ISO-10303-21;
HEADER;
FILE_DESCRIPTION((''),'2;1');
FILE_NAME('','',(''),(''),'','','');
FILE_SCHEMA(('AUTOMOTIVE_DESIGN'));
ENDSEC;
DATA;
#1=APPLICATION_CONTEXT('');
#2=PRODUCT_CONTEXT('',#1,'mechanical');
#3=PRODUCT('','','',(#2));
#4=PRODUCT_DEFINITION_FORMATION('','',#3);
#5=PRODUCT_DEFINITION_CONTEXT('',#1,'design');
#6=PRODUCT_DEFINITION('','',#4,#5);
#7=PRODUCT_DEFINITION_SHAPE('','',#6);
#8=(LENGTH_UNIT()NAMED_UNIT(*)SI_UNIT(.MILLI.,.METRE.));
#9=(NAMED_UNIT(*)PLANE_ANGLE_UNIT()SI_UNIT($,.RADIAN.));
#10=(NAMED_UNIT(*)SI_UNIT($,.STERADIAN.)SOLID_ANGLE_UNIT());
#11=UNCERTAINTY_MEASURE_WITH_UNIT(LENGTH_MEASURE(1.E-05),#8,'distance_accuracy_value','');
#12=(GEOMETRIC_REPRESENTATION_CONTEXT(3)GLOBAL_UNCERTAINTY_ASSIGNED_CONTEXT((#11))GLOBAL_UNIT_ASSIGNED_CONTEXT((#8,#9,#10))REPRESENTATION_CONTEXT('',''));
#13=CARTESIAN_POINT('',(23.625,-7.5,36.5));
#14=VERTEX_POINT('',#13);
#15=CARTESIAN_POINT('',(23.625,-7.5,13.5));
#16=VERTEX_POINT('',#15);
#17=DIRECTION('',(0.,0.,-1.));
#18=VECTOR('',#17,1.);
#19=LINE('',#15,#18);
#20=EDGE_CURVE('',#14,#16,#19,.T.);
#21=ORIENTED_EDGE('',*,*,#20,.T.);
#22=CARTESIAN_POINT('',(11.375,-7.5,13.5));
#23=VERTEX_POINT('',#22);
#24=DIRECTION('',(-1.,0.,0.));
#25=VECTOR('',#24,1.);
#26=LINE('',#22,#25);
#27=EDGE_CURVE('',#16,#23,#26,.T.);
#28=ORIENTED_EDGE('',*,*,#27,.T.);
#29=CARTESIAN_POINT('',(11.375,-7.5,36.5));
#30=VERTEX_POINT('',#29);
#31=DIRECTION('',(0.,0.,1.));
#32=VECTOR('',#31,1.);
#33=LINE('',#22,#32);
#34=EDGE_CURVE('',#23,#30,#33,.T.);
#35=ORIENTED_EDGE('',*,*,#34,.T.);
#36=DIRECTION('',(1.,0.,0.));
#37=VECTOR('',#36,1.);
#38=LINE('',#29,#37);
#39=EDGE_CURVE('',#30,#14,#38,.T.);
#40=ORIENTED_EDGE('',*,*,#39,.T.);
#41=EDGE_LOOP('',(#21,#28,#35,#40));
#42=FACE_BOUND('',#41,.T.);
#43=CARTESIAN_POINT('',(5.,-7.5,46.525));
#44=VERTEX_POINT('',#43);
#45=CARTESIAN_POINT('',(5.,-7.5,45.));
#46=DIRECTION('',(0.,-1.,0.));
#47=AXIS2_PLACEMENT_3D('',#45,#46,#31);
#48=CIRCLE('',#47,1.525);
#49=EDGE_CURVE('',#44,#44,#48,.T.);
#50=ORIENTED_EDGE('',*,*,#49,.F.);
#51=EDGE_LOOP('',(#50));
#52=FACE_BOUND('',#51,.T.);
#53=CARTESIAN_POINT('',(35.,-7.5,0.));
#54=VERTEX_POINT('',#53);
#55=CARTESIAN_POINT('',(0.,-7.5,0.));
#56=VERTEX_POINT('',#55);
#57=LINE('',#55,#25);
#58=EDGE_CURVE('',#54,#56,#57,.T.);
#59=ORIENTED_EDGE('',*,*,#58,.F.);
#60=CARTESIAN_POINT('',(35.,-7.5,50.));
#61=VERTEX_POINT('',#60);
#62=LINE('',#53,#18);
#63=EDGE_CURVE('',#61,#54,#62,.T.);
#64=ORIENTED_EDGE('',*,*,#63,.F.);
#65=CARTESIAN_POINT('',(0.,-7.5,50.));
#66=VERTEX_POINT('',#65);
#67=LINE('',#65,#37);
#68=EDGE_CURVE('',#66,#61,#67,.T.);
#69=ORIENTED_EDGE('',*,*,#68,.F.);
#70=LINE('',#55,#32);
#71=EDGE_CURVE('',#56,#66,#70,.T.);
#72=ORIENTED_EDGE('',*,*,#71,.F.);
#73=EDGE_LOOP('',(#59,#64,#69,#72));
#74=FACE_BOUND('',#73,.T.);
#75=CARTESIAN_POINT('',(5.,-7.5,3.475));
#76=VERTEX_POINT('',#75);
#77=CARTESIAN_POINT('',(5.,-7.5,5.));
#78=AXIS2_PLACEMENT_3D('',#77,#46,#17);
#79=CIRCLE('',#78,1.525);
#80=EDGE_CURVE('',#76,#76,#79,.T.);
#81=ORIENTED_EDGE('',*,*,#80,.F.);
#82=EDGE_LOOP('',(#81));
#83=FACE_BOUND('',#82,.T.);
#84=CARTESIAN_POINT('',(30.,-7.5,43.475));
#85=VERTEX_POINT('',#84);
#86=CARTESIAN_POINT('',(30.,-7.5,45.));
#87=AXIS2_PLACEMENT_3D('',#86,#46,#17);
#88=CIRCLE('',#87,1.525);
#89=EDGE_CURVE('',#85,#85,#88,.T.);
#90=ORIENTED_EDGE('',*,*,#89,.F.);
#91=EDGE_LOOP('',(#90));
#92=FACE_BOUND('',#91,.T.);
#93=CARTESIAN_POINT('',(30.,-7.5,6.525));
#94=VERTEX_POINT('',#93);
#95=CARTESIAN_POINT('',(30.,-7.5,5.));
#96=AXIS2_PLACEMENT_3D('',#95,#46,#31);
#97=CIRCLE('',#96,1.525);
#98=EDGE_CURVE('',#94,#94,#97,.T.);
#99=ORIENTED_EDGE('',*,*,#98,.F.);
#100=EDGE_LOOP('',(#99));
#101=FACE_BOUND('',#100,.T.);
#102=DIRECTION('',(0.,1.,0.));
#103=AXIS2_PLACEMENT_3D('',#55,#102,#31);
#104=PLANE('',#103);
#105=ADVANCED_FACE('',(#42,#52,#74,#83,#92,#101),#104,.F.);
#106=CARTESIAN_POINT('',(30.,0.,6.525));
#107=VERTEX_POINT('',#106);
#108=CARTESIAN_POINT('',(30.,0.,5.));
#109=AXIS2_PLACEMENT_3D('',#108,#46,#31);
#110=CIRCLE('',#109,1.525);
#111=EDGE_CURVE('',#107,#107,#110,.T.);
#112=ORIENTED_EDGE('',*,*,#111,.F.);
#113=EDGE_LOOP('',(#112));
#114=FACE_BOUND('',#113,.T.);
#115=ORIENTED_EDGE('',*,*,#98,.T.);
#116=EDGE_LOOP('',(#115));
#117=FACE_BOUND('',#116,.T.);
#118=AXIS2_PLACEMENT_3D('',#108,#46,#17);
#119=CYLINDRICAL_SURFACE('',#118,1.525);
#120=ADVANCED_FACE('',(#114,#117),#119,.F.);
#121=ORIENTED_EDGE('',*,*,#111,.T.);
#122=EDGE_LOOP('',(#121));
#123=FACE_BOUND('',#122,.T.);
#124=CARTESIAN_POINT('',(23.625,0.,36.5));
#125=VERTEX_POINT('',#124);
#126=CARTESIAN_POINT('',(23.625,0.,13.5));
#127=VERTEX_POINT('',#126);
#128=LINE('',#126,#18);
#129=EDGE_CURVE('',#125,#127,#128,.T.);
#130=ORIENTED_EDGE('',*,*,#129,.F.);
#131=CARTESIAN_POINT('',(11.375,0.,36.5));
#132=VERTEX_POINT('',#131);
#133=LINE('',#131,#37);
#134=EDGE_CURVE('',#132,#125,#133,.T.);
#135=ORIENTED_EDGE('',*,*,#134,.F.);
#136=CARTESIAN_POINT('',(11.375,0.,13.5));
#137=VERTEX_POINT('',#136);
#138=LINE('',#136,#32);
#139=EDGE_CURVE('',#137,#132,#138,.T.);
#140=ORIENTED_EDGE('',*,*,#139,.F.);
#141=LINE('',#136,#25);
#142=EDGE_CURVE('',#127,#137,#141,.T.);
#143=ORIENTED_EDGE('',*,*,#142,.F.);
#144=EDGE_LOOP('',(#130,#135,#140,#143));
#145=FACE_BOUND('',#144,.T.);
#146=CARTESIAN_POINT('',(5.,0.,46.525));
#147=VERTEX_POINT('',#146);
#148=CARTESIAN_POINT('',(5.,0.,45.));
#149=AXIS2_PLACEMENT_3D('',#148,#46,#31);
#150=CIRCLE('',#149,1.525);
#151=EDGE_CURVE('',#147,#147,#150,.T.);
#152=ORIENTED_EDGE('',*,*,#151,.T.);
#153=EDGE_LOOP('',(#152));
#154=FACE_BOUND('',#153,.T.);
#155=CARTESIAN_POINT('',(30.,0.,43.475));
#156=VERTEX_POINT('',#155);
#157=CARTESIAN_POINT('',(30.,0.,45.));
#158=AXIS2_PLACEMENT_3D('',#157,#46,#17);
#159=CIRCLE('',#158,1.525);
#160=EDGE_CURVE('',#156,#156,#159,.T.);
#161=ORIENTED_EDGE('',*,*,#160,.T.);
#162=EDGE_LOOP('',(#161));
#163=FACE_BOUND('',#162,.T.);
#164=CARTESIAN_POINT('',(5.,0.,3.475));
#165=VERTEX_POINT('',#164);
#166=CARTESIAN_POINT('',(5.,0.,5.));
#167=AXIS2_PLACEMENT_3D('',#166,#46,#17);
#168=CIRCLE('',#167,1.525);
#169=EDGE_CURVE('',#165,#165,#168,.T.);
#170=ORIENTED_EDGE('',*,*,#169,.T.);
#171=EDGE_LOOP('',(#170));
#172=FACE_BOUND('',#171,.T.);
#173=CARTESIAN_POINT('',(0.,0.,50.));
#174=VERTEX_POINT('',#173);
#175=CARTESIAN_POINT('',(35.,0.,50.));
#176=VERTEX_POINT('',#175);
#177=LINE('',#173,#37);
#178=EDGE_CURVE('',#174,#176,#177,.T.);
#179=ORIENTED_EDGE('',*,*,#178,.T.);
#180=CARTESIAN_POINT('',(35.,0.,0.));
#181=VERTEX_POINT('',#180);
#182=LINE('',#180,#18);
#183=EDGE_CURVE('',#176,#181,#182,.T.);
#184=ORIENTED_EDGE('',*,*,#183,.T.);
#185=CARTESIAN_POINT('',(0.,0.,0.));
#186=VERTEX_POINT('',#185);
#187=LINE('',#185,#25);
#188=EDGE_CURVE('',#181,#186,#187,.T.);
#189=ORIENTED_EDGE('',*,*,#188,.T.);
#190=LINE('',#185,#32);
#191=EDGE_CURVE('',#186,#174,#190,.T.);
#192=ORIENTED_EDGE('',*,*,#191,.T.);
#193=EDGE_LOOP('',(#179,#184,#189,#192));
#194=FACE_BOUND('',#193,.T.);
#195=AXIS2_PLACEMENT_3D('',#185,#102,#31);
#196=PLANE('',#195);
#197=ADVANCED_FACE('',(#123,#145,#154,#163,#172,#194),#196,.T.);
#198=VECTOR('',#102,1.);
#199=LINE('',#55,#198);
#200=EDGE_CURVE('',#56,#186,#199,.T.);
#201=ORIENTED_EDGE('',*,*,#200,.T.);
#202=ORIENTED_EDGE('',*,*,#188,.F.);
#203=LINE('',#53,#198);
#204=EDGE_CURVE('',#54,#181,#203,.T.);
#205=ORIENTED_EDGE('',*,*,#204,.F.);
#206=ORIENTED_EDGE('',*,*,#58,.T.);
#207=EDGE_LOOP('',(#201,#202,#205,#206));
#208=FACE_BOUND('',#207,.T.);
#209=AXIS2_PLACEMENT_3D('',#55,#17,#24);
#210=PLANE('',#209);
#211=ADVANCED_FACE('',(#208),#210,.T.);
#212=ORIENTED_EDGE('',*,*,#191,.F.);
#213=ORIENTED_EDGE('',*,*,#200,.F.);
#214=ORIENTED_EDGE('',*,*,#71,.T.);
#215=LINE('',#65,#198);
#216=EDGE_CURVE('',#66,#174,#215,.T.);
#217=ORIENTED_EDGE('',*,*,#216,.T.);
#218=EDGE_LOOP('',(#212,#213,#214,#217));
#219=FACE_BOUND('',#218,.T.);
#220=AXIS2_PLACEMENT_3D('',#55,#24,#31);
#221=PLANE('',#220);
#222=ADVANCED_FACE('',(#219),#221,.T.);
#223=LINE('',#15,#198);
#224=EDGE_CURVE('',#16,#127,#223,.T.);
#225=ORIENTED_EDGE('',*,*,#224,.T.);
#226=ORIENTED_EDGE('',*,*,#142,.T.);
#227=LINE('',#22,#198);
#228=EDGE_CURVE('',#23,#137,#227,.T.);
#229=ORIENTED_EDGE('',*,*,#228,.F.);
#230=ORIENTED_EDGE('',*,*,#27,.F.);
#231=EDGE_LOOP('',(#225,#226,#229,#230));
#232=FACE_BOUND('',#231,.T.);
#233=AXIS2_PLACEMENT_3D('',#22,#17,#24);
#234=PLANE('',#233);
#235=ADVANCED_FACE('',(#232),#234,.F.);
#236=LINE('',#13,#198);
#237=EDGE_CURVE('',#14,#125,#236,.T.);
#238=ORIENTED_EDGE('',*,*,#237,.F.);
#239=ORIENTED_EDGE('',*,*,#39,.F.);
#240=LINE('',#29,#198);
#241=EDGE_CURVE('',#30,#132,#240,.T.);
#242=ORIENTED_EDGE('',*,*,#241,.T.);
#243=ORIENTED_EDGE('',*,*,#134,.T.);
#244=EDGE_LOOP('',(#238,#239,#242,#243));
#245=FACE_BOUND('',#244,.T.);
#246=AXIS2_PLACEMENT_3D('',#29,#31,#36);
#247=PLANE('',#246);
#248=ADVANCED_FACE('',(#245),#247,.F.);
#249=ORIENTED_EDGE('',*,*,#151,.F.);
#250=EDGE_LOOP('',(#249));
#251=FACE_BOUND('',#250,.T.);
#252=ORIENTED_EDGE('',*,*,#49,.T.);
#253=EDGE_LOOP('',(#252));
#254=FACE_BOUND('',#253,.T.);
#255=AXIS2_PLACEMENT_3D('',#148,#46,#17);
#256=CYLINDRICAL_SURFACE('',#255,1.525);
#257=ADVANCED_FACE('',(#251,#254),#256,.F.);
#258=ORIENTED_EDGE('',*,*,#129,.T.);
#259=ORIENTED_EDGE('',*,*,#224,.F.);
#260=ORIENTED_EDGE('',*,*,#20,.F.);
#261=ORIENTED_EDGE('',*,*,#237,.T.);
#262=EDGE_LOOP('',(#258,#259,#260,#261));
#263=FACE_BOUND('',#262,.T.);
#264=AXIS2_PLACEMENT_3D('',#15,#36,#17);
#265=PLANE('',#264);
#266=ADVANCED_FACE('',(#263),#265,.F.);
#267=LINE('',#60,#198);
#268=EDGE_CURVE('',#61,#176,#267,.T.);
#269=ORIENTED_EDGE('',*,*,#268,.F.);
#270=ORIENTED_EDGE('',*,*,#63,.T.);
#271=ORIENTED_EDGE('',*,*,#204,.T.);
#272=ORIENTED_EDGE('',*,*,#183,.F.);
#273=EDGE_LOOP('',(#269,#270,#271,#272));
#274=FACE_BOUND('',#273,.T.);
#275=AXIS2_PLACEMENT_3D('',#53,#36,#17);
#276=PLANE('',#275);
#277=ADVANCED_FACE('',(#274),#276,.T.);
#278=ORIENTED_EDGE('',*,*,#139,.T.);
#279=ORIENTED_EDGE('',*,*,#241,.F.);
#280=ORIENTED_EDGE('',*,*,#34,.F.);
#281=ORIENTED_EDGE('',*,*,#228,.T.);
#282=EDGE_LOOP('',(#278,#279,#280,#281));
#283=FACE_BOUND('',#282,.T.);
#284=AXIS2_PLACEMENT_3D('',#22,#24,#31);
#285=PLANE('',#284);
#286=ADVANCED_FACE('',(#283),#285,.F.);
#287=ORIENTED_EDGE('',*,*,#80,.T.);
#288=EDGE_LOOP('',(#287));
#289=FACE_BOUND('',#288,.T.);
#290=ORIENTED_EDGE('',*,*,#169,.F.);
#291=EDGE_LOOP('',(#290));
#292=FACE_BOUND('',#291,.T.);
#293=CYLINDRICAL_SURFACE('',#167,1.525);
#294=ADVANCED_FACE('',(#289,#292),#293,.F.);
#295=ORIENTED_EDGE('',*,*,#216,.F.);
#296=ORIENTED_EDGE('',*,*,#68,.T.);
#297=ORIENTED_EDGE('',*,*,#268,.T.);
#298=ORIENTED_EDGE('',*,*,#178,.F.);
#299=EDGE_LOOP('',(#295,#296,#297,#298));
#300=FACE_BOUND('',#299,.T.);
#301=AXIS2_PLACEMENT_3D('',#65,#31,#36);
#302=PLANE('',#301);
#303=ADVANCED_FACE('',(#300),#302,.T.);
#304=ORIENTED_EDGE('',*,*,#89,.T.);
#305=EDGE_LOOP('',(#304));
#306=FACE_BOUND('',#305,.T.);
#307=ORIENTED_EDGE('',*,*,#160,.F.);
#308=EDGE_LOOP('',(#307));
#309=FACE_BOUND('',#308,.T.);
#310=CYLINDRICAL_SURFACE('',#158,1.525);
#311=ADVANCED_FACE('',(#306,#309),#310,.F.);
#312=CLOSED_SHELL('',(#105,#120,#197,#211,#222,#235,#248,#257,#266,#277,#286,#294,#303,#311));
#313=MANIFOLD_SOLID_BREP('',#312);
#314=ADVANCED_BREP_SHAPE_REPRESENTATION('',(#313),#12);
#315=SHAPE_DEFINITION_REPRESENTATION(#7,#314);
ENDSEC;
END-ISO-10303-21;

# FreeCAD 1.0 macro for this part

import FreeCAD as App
import Part
import Sketcher
from FreeCAD import Vector
Q = App.Units.Quantity


def add_polygon(sketch, points):
    """Adds a closed chain of lines whose ends are joined by coincident constraints."""
    first, n = sketch.GeometryCount, len(points)
    for a, b in zip(points, points[1:] + points[:1]):
        sketch.addGeometry(Part.LineSegment(App.Vector(*a, 0), App.Vector(*b, 0)), False)
    for i in range(n):
        sketch.addConstraint(Sketcher.Constraint("Coincident", first + i, 2, first + (i + 1) % n, 1))

doc = App.newDocument("Part")
body = doc.addObject("PartDesign::Body", "Body")

sketch1 = body.newObject("Sketcher::SketchObject", "Sketch")
sketch1.AttachmentSupport = (doc.getObject("XZ_Plane"), [""])
sketch1.MapMode = "FlatFace"
add_polygon(sketch1, [(0, 0), (0, 50), (35, 50), (35, 0)])
add_polygon(sketch1, [(24, 36), (11, 36), (11, 14), (24, 14)])
sketch1.addConstraint(Sketcher.Constraint("Vertical", 0))
sketch1.addConstraint(Sketcher.Constraint("Horizontal", 1))
sketch1.addConstraint(Sketcher.Constraint("Vertical", 2))
sketch1.addConstraint(Sketcher.Constraint("Horizontal", 3))
sketch1.addConstraint(Sketcher.Constraint("Horizontal", 4))
sketch1.addConstraint(Sketcher.Constraint("Vertical", 5))
sketch1.addConstraint(Sketcher.Constraint("Horizontal", 6))
sketch1.addConstraint(Sketcher.Constraint("Vertical", 7))
sketch1.addConstraint(Sketcher.Constraint("Coincident", 3, 2, -1, 1))
sketch1.addConstraint(Sketcher.Constraint("DistanceX", 1, 1, 1, 2, Q("35 mm")))
sketch1.addConstraint(Sketcher.Constraint("DistanceY", 0, 1, 0, 2, Q("50 mm")))
sketch1.addConstraint(Sketcher.Constraint("DistanceY", 5, 2, 5, 1, Q("23 mm")))
sketch1.addConstraint(Sketcher.Constraint("DistanceX", 4, 2, 4, 1, Q("12.25 mm")))
sketch1.addConstraint(Sketcher.Constraint("DistanceY", -1, 1, 4, 2, Q("36.5 mm")))
sketch1.addConstraint(Sketcher.Constraint("DistanceX", -1, 1, 4, 2, Q("11.375 mm")))
pad1 = body.newObject("PartDesign::Pad", "Pad")
pad1.Profile = sketch1
pad1.Length = 7.5

sketch2 = body.newObject("Sketcher::SketchObject", "Sketch001")
sketch2.AttachmentSupport = (doc.getObject("XZ_Plane"), [""])
sketch2.MapMode = "FlatFace"
sketch2.AttachmentOffset = App.Placement(Vector(0, 0, 7.5), App.Rotation())
sketch2.addGeometry(Part.Circle(Vector(5, 5, 0), Vector(0, 0, 1), 1.5), False)
sketch2.addGeometry(Part.Circle(Vector(5, 45, 0), Vector(0, 0, 1), 1.5), False)
sketch2.addGeometry(Part.Circle(Vector(30, 45, 0), Vector(0, 0, 1), 1.5), False)
sketch2.addGeometry(Part.Circle(Vector(30, 5, 0), Vector(0, 0, 1), 1.5), False)
sketch2.addConstraint(Sketcher.Constraint("Equal", 0, 1))
sketch2.addConstraint(Sketcher.Constraint("Equal", 1, 2))
sketch2.addConstraint(Sketcher.Constraint("Equal", 2, 3))
sketch2.addConstraint(Sketcher.Constraint("Horizontal", 1, 3, 2, 3))
sketch2.addConstraint(Sketcher.Constraint("Horizontal", 0, 3, 3, 3))
sketch2.addConstraint(Sketcher.Constraint("Vertical", 0, 3, 1, 3))
sketch2.addConstraint(Sketcher.Constraint("Vertical", 2, 3, 3, 3))
sketch2.addConstraint(Sketcher.Constraint("Diameter", 0, Q("3.05 mm")))
sketch2.addConstraint(Sketcher.Constraint("DistanceX", -1, 1, 0, 3, Q("5 mm")))
sketch2.addConstraint(Sketcher.Constraint("DistanceY", -1, 1, 0, 3, Q("5 mm")))
sketch2.addConstraint(Sketcher.Constraint("DistanceY", -1, 1, 1, 3, Q("45 mm")))
sketch2.addConstraint(Sketcher.Constraint("DistanceX", -1, 1, 2, 3, Q("30 mm")))
pocket1 = body.newObject("PartDesign::Pocket", "Pocket")
pocket1.Profile = sketch2
pocket1.Type = "ThroughAll"

doc.recompute()
